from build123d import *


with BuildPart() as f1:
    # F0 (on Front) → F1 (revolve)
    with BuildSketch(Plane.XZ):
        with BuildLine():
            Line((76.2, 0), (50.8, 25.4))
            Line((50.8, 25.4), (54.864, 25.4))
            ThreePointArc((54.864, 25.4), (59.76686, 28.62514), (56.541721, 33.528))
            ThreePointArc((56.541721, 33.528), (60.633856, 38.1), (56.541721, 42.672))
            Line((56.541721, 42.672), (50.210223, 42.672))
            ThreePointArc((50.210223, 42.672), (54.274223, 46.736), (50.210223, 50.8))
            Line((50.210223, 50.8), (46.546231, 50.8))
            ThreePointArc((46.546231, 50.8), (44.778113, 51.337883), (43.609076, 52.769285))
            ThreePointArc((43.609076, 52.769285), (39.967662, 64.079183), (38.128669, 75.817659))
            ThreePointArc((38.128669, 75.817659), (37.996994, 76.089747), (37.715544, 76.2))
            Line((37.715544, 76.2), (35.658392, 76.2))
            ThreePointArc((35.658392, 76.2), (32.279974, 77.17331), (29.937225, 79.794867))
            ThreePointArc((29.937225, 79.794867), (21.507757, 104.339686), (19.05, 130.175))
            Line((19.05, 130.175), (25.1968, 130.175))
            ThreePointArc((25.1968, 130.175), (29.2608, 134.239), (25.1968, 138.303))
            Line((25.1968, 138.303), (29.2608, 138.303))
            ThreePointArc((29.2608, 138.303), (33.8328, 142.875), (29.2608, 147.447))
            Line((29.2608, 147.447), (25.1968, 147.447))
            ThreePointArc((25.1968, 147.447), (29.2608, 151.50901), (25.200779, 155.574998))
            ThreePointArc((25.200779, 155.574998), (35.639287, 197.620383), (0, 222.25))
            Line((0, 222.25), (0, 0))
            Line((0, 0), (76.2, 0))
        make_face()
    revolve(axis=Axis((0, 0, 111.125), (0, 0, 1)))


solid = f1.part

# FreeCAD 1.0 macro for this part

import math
import FreeCAD as App
import Part
import Sketcher

V = App.Vector
Q = App.Units.Quantity

doc = App.newDocument("Part")
body = doc.addObject("PartDesign::Body", "Body")

# Sketch on XZ plane
sketch1 = doc.addObject("Sketcher::SketchObject", "Sketch")
body.addObject(sketch1)
sketch1.AttachmentSupport = (doc.XZ_Plane, [""])
sketch1.MapMode = "FlatFace"
sketch1.addGeometry([
    Part.LineSegment(V(76.2, 0, 0), V(50.8, 25.4, 0)),  # 0
    Part.LineSegment(V(50.8, 25.4, 0), V(54.864, 25.4, 0)),  # 1
    Part.ArcOfCircle(Part.Circle(V(55.70286, 29.464, 0), V(0, 0, 1), 4.149673), math.radians(-101.662764), math.radians(78.33722)),  # 2
    Part.ArcOfCircle(Part.Circle(V(56.03372, 38.1, 0), V(0, 0, 1), 4.600136), math.radians(-83.659799), math.radians(83.659799)),  # 3
    Part.LineSegment(V(56.541721, 42.672, 0), V(50.210223, 42.672, 0)),  # 4
    Part.ArcOfCircle(Part.Circle(V(50.210223, 46.736, 0), V(0, 0, 1), 4.064), math.radians(-90), math.radians(90)),  # 5
    Part.LineSegment(V(50.210223, 50.8, 0), V(46.546231, 50.8, 0)),  # 6
    Part.ArcOfCircle(Part.Circle(V(46.54623, 53.975, 0), V(0, 0, 1), 3.175), math.radians(-157.681635), math.radians(-89.999986)),  # 7
    Part.ArcOfCircle(Part.Circle(V(114.100757, 81.706437, 0), V(0, 0, 1), 76.199973), math.radians(-175.56773), math.radians(-157.681629)),  # 8
    Part.ArcOfCircle(Part.Circle(V(37.715544, 75.785636, 0), V(0, 0, 1), 0.414364), math.radians(4.432397), math.radians(90.000007)),  # 9
    Part.LineSegment(V(37.715544, 76.2, 0), V(35.658392, 76.2, 0)),  # 10
    Part.ArcOfCircle(Part.Circle(V(35.658392, 82.550001, 0), V(0, 0, 1), 6.350001), math.radians(-154.285997), math.radians(-89.999998)),  # 11
    Part.ArcOfCircle(Part.Circle(V(129.25825, 127.624734, 0), V(0, 0, 1), 110.237753), math.radians(178.674388), math.radians(205.713997)),  # 12
    Part.LineSegment(V(19.05, 130.175, 0), V(25.1968, 130.175, 0)),  # 13
    Part.ArcOfCircle(Part.Circle(V(25.1968, 134.239, 0), V(0, 0, 1), 4.064), math.radians(-90), math.radians(90)),  # 14
    Part.LineSegment(V(25.1968, 138.303, 0), V(29.2608, 138.303, 0)),  # 15
    Part.ArcOfCircle(Part.Circle(V(29.2608, 142.875, 0), V(0, 0, 1), 4.572), math.radians(-90), math.radians(90)),  # 16
    Part.LineSegment(V(29.2608, 147.447, 0), V(25.1968, 147.447, 0)),  # 17
    Part.ArcOfCircle(Part.Circle(V(25.196801, 151.511, 0), V(0, 0, 1), 4.064), math.radians(-90.000007), math.radians(89.94391)),  # 18
    Part.ArcOfCircle(Part.Circle(V(0, 184.15, 0), V(0, 0, 1), 38.1), math.radians(-48.590382), math.radians(90)),  # 19
    Part.LineSegment(V(0, 222.25, 0), V(0, 0, 0)),  # 20
    Part.LineSegment(V(0, 0, 0), V(76.2, 0, 0)),  # 21
], False)
sketch1.addConstraint([
    Sketcher.Constraint("Coincident", 0, 2, 1, 1),
    Sketcher.Constraint("Coincident", 1, 2, 2, 1),
    Sketcher.Constraint("Coincident", 2, 2, 3, 1),
    Sketcher.Constraint("Coincident", 3, 2, 4, 1),
    Sketcher.Constraint("Tangent", 4, 2, 5, 1),
    Sketcher.Constraint("Tangent", 5, 2, 6, 1),
    Sketcher.Constraint("Tangent", 6, 2, 7, 2),
    Sketcher.Constraint("Tangent", 7, 1, 8, 2),
    Sketcher.Constraint("Coincident", 8, 1, 9, 1),
    Sketcher.Constraint("Tangent", 9, 2, 10, 1),
    Sketcher.Constraint("Tangent", 10, 2, 11, 2),
    Sketcher.Constraint("Tangent", 11, 1, 12, 2),
    Sketcher.Constraint("Coincident", 12, 1, 13, 1),
    Sketcher.Constraint("Tangent", 13, 2, 14, 1),
    Sketcher.Constraint("Tangent", 14, 2, 15, 1),
    Sketcher.Constraint("Tangent", 15, 2, 16, 1),
    Sketcher.Constraint("Tangent", 16, 2, 17, 1),
    Sketcher.Constraint("Tangent", 17, 2, 18, 1),
    Sketcher.Constraint("Coincident", 18, 2, 19, 1),
    Sketcher.Constraint("Coincident", 19, 2, 20, 1),
    Sketcher.Constraint("Coincident", 20, 2, 21, 1),
    Sketcher.Constraint("Coincident", 21, 2, 0, 1),
    Sketcher.Constraint("Horizontal", 1),
    Sketcher.Constraint("Horizontal", 4),
    Sketcher.Constraint("Horizontal", 6),
    Sketcher.Constraint("Horizontal", 10),
    Sketcher.Constraint("Horizontal", 13),
    Sketcher.Constraint("Horizontal", 15),
    Sketcher.Constraint("Horizontal", 17),
    Sketcher.Constraint("Vertical", 20),
    Sketcher.Constraint("Horizontal", 21),
    Sketcher.Constraint("Coincident", 20, 2, -1, 1),
    Sketcher.Constraint("Equal", 5, 14),
    Sketcher.Constraint("Equal", 14, 18),
    Sketcher.Constraint("PointOnObject", 19, 3, -2),
    Sketcher.Constraint("Vertical", 14, 3, 18, 3),
    Sketcher.Constraint("Vertical", 2, 2, 3, 2),
    Sketcher.Constraint("Equal", 1, 15),
    Sketcher.Constraint("Radius", 19, Q("1.5 in")),
    Sketcher.Constraint("DistanceX", 21, 1, 21, 2, Q("3 in")),
    Sketcher.Constraint("Radius", 5, Q("0.16 in")),
    Sketcher.Constraint("Radius", 11, Q("0.25 in")),
    Sketcher.Constraint("Radius", 16, Q("0.18 in")),
    Sketcher.Constraint("DistanceX", -1, 1, 0, 2, Q("2 in")),
    Sketcher.Constraint("DistanceY", -1, 1, 0, 2, Q("1 in")),
    Sketcher.Constraint("DistanceY", -1, 1, 5, 2, Q("2 in")),
    Sketcher.Constraint("DistanceY", -1, 1, 9, 2, Q("3 in")),
    Sketcher.Constraint("Radius", 7, Q("0.125 in")),
    Sketcher.Constraint("DistanceY", 11, 3, 19, 3, Q("4 in")),
    Sketcher.Constraint("DistanceX", 1, 1, 1, 2, Q("0.16 in")),
    Sketcher.Constraint("DistanceY", -1, 1, 3, 3, Q("1.5 in")),
    Sketcher.Constraint("DistanceY", 7, 3, 16, 3, Q("3.5 in")),
    Sketcher.Constraint("DistanceX", 13, 1, 13, 2, Q("0.242 in")),
    Sketcher.Constraint("DistanceY", -1, 1, 2, 3, Q("1.16 in")),
    Sketcher.Constraint("DistanceX", -1, 1, 12, 1, Q("0.75 in")),
    Sketcher.Constraint("DistanceX", 3, 3, 2, 2, Q("0.02 in")),
    Sketcher.Constraint("DistanceX", 4, 2, 4, 1, Q("6.331498 mm")),
    Sketcher.Constraint("Radius", 2, Q("4.149673 mm")),
    Sketcher.Constraint("Radius", 8, Q("76.199973 mm")),
    Sketcher.Constraint("Radius", 9, Q("0.414364 mm")),
    Sketcher.Constraint("Radius", 12, Q("110.237753 mm")),
    Sketcher.Constraint("DistanceX", 8, 1, 7, 3, Q("0.3314 in")),
    Sketcher.Constraint("DistanceY", 9, 3, 8, 3, Q("5.920801 mm")),
    Sketcher.Constraint("DistanceY", 9, 3, 12, 3, Q("51.839099 mm")),
    Sketcher.Constraint("DistanceX", 6, 2, 6, 1, Q("3.663992 mm")),
])
revolution = doc.addObject("PartDesign::Revolution", "Revolution")
body.addObject(revolution)
revolution.Profile = sketch1
revolution.ReferenceAxis = (sketch1, ["V_Axis"])
revolution.Angle = 360

doc.recompute()
